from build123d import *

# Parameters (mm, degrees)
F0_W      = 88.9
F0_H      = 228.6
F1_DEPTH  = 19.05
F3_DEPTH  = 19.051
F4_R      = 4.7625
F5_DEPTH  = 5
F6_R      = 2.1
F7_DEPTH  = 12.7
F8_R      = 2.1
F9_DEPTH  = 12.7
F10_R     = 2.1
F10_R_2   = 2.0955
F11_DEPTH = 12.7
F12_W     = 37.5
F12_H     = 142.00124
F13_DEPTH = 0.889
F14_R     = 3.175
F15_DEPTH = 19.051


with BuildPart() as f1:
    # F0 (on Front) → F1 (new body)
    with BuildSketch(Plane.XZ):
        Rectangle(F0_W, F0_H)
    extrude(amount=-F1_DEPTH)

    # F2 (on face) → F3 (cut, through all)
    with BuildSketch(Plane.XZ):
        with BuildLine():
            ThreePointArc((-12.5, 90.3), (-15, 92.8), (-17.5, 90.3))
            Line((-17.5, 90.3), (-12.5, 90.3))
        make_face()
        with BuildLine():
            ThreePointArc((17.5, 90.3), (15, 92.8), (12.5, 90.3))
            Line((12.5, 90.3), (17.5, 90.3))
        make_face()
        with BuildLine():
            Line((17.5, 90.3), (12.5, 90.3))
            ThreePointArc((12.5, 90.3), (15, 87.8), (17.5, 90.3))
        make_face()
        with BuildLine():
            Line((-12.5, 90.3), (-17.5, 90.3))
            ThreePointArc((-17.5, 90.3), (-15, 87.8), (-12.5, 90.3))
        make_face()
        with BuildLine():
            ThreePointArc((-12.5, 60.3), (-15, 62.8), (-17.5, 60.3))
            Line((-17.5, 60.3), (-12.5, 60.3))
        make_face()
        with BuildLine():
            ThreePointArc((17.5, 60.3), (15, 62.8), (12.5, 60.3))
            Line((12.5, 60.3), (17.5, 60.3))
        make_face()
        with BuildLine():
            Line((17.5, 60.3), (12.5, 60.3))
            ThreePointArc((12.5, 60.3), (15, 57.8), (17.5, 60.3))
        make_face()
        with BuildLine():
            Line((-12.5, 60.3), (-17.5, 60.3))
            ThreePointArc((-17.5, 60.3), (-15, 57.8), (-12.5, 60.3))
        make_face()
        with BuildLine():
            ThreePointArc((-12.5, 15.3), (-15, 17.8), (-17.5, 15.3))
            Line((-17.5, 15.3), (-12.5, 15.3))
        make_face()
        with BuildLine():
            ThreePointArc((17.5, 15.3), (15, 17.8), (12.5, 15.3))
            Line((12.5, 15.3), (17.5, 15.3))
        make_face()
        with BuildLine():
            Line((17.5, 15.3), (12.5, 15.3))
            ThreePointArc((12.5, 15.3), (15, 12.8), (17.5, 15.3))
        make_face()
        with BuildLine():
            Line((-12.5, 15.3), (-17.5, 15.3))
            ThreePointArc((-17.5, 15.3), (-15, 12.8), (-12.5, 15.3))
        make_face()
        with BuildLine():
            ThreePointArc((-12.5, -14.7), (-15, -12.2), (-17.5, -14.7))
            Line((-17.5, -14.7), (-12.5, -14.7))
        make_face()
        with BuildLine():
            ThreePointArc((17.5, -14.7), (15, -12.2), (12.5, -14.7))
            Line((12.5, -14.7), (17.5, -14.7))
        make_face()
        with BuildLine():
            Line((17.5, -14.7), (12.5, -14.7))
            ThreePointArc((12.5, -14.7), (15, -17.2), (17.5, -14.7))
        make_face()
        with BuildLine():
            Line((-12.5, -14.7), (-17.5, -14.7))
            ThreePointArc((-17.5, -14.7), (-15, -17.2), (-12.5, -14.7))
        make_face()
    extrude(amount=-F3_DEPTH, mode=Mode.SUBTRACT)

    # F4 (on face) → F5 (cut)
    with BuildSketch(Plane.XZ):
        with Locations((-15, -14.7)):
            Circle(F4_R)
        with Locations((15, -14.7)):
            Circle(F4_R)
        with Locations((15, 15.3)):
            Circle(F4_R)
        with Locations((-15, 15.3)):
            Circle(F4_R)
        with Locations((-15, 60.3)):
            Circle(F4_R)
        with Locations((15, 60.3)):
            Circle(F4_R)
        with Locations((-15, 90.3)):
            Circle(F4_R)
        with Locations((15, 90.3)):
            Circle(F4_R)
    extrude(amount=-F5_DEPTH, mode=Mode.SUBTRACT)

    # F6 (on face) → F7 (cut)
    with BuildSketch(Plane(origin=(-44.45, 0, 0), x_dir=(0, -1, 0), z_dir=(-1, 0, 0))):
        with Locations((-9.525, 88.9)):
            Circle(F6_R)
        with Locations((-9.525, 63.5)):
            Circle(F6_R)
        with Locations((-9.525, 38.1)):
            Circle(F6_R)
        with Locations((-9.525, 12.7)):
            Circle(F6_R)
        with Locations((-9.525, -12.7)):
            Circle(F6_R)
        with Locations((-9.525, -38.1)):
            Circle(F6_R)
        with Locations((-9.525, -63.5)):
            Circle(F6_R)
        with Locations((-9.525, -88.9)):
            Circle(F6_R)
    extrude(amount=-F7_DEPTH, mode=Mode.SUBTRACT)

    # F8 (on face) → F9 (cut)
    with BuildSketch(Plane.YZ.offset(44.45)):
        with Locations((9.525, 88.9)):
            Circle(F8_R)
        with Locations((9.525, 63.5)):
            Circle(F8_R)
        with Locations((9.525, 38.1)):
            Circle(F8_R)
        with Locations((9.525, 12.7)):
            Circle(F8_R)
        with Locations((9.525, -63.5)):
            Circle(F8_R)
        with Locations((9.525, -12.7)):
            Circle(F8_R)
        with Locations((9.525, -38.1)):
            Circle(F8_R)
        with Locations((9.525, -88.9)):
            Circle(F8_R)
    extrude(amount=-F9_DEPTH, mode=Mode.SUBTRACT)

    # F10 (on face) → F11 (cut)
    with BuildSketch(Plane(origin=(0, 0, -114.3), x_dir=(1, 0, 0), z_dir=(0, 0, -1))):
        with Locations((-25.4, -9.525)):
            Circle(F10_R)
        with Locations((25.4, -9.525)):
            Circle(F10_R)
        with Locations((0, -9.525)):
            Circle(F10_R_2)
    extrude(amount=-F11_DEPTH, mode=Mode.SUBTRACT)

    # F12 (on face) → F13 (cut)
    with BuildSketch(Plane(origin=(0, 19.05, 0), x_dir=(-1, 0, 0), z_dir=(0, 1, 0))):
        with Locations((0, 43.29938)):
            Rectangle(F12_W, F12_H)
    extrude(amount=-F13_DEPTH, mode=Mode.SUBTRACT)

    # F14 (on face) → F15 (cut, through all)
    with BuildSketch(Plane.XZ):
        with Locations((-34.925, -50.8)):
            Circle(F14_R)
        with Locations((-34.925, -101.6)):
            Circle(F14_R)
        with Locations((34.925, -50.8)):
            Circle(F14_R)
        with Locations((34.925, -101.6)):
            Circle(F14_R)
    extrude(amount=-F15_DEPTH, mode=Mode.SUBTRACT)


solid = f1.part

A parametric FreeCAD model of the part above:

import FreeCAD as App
import Part
import Sketcher

V = App.Vector
Q = App.Units.Quantity

doc = App.newDocument("Part")
params = doc.addObject("Spreadsheet::Sheet", "Params")
for row, (alias, value) in enumerate([
    ("sketch1_height", "9 in"),
    ("sketch1_width", "3.5 in"),
    ("pad1_length", "0.75 in"),
    ("sketch3_diameter", "0.375 in"),
    ("pocket2_length", "5 mm"),
    ("pocket3_length", "0.5 in"),
    ("pocket4_length", "0.5 in"),
    ("sketch6_diameter", "0.165 in"),
    ("pocket5_length", "0.5 in"),
    ("pocket6_length", "0.035 in"),
    ("sketch8_diameter", "0.25 in"),
], start=1):
    params.set(f"A{row}", alias)
    params.set(f"B{row}", "=" + value)
    params.setAlias(f"B{row}", alias)

body = doc.addObject("PartDesign::Body", "Body")

# Sketch on XZ plane
sketch1 = body.newObject("Sketcher::SketchObject", "Sketch")
sketch1.AttachmentSupport = (doc.getObject("XZ_Plane"), [""])
sketch1.MapMode = "FlatFace"
sketch1.addGeometry(Part.LineSegment(V(-44, 114, 0), V(-44, -114, 0)), False)
sketch1.addGeometry(Part.LineSegment(V(-44, -114, 0), V(44, -114, 0)), False)
sketch1.addGeometry(Part.LineSegment(V(44, -114, 0), V(44, 114, 0)), False)
sketch1.addGeometry(Part.LineSegment(V(44, 114, 0), V(-44, 114, 0)), False)
sketch1.addConstraint(Sketcher.Constraint("Coincident", 0, 2, 1, 1))
sketch1.addConstraint(Sketcher.Constraint("Coincident", 1, 2, 2, 1))
sketch1.addConstraint(Sketcher.Constraint("Coincident", 2, 2, 3, 1))
sketch1.addConstraint(Sketcher.Constraint("Coincident", 3, 2, 0, 1))
sketch1.addConstraint(Sketcher.Constraint("Vertical", 0))
sketch1.addConstraint(Sketcher.Constraint("Horizontal", 1))
sketch1.addConstraint(Sketcher.Constraint("Vertical", 2))
sketch1.addConstraint(Sketcher.Constraint("Horizontal", 3))
sketch1.addConstraint(Sketcher.Constraint("Symmetric", 0, 2, 2, 2, -1, 1))
sketch1.addConstraint(Sketcher.Constraint("DistanceY", 0, 2, 0, 1, Q("9 in")))
sketch1.addConstraint(Sketcher.Constraint("DistanceX", 1, 1, 1, 2, Q("3.5 in")))
sketch1.setExpression("Constraints[9]", "Params.sketch1_height")
sketch1.setExpression("Constraints[10]", "Params.sketch1_width")
pad1 = body.newObject("PartDesign::Pad", "Pad")
pad1.Profile = sketch1
pad1.setExpression("Length", "Params.pad1_length")
pad1.Reversed = True

# Sketch on XZ plane
sketch2 = body.newObject("Sketcher::SketchObject", "Sketch001")
sketch2.AttachmentSupport = (doc.getObject("XZ_Plane"), [""])
sketch2.MapMode = "FlatFace"
sketch2.addGeometry(Part.Circle(V(-15, 90.3, 0), V(0, 0, 1), 2.5), False)
sketch2.addGeometry(Part.Circle(V(15, 90.3, 0), V(0, 0, 1), 2.5), False)
sketch2.addGeometry(Part.Circle(V(-15, 60.3, 0), V(0, 0, 1), 2.5), False)
sketch2.addGeometry(Part.Circle(V(15, 60.3, 0), V(0, 0, 1), 2.5), False)
sketch2.addGeometry(Part.Circle(V(-15, 15.3, 0), V(0, 0, 1), 2.5), False)
sketch2.addGeometry(Part.Circle(V(15, 15.3, 0), V(0, 0, 1), 2.5), False)
sketch2.addGeometry(Part.Circle(V(-15, -14.7, 0), V(0, 0, 1), 2.5), False)
sketch2.addGeometry(Part.Circle(V(15, -14.7, 0), V(0, 0, 1), 2.5), False)
sketch2.addConstraint(Sketcher.Constraint("Equal", 0, 1))
sketch2.addConstraint(Sketcher.Constraint("Equal", 1, 2))
sketch2.addConstraint(Sketcher.Constraint("Equal", 2, 3))
sketch2.addConstraint(Sketcher.Constraint("Equal", 3, 4))
sketch2.addConstraint(Sketcher.Constraint("Equal", 4, 5))
sketch2.addConstraint(Sketcher.Constraint("Equal", 5, 6))
sketch2.addConstraint(Sketcher.Constraint("Equal", 6, 7))
sketch2.addConstraint(Sketcher.Constraint("Symmetric", 0, 3, 1, 3, -2))
sketch2.addConstraint(Sketcher.Constraint("Symmetric", 2, 3, 3, 3, -2))
sketch2.addConstraint(Sketcher.Constraint("Symmetric", 4, 3, 5, 3, -2))
sketch2.addConstraint(Sketcher.Constraint("Symmetric", 6, 3, 7, 3, -2))
sketch2.addConstraint(Sketcher.Constraint("Vertical", 0, 3, 2, 3))
sketch2.addConstraint(Sketcher.Constraint("Vertical", 2, 3, 4, 3))
sketch2.addConstraint(Sketcher.Constraint("Vertical", 4, 3, 6, 3))
sketch2.addConstraint(Sketcher.Constraint("Diameter", 0, 5.0))
sketch2.addConstraint(Sketcher.Constraint("DistanceX", 0, 3, -1, 1, 15.0))
sketch2.addConstraint(Sketcher.Constraint("DistanceY", -1, 1, 0, 3, 90.3))
sketch2.addConstraint(Sketcher.Constraint("DistanceY", -1, 1, 2, 3, 60.3))
sketch2.addConstraint(Sketcher.Constraint("DistanceY", -1, 1, 4, 3, 15.3))
sketch2.addConstraint(Sketcher.Constraint("DistanceY", 6, 3, -1, 1, 14.7))
pocket1 = body.newObject("PartDesign::Pocket", "Pocket")
pocket1.Profile = sketch2
pocket1.Type = "ThroughAll"

# Sketch on XZ plane
sketch3 = body.newObject("Sketcher::SketchObject", "Sketch002")
sketch3.AttachmentSupport = (doc.getObject("XZ_Plane"), [""])
sketch3.MapMode = "FlatFace"
sketch3.addGeometry(Part.Circle(V(-15, -14.7, 0), V(0, 0, 1), 4.8), False)
sketch3.addGeometry(Part.Circle(V(15, -14.7, 0), V(0, 0, 1), 4.8), False)
sketch3.addGeometry(Part.Circle(V(15, 15.3, 0), V(0, 0, 1), 4.8), False)
sketch3.addGeometry(Part.Circle(V(-15, 15.3, 0), V(0, 0, 1), 4.8), False)
sketch3.addGeometry(Part.Circle(V(-15, 60.3, 0), V(0, 0, 1), 4.8), False)
sketch3.addGeometry(Part.Circle(V(15, 60.3, 0), V(0, 0, 1), 4.8), False)
sketch3.addGeometry(Part.Circle(V(-15, 90.3, 0), V(0, 0, 1), 4.8), False)
sketch3.addGeometry(Part.Circle(V(15, 90.3, 0), V(0, 0, 1), 4.8), False)
sketch3.addConstraint(Sketcher.Constraint("Equal", 0, 1))
sketch3.addConstraint(Sketcher.Constraint("Equal", 1, 2))
sketch3.addConstraint(Sketcher.Constraint("Equal", 2, 3))
sketch3.addConstraint(Sketcher.Constraint("Equal", 3, 4))
sketch3.addConstraint(Sketcher.Constraint("Equal", 4, 5))
sketch3.addConstraint(Sketcher.Constraint("Equal", 5, 6))
sketch3.addConstraint(Sketcher.Constraint("Equal", 6, 7))
sketch3.addConstraint(Sketcher.Constraint("Symmetric", 0, 3, 1, 3, -2))
sketch3.addConstraint(Sketcher.Constraint("Symmetric", 2, 3, 3, 3, -2))
sketch3.addConstraint(Sketcher.Constraint("Symmetric", 4, 3, 5, 3, -2))
sketch3.addConstraint(Sketcher.Constraint("Symmetric", 6, 3, 7, 3, -2))
sketch3.addConstraint(Sketcher.Constraint("Vertical", 1, 3, 2, 3))
sketch3.addConstraint(Sketcher.Constraint("Vertical", 3, 3, 4, 3))
sketch3.addConstraint(Sketcher.Constraint("Vertical", 4, 3, 6, 3))
sketch3.addConstraint(Sketcher.Constraint("Diameter", 0, Q("0.375 in")))
sketch3.addConstraint(Sketcher.Constraint("DistanceX", 0, 3, -1, 1, 15.0))
sketch3.addConstraint(Sketcher.Constraint("DistanceY", 0, 3, -1, 1, 14.7))
sketch3.addConstraint(Sketcher.Constraint("DistanceY", -1, 1, 2, 3, 15.3))
sketch3.addConstraint(Sketcher.Constraint("DistanceY", -1, 1, 4, 3, 60.3))
sketch3.addConstraint(Sketcher.Constraint("DistanceY", -1, 1, 6, 3, 90.3))
sketch3.setExpression("Constraints[14]", "Params.sketch3_diameter")
pocket2 = body.newObject("PartDesign::Pocket", "Pocket001")
pocket2.Profile = sketch3
pocket2.setExpression("Length", "Params.pocket2_length")

# Sketch on YZ plane
sketch4 = body.newObject("Sketcher::SketchObject", "Sketch003")
sketch4.AttachmentSupport = (doc.getObject("YZ_Plane"), [""])
sketch4.MapMode = "FlatFace"
sketch4.AttachmentOffset = App.Placement(V(0, 0, -1.75 * 25.4), App.Rotation())
sketch4.addGeometry(Part.Circle(V(9.5, 88.9, 0), V(0, 0, 1), 2.1), False)
sketch4.addGeometry(Part.Circle(V(9.5, 63.5, 0), V(0, 0, 1), 2.1), False)
sketch4.addGeometry(Part.Circle(V(9.5, 38.1, 0), V(0, 0, 1), 2.1), False)
sketch4.addGeometry(Part.Circle(V(9.5, 12.7, 0), V(0, 0, 1), 2.1), False)
sketch4.addGeometry(Part.Circle(V(9.5, -12.7, 0), V(0, 0, 1), 2.1), False)
sketch4.addGeometry(Part.Circle(V(9.5, -38.1, 0), V(0, 0, 1), 2.1), False)
sketch4.addGeometry(Part.Circle(V(9.5, -63.5, 0), V(0, 0, 1), 2.1), False)
sketch4.addGeometry(Part.Circle(V(9.5, -88.9, 0), V(0, 0, 1), 2.1), False)
sketch4.addConstraint(Sketcher.Constraint("Equal", 0, 1))
sketch4.addConstraint(Sketcher.Constraint("Equal", 1, 2))
sketch4.addConstraint(Sketcher.Constraint("Equal", 2, 3))
sketch4.addConstraint(Sketcher.Constraint("Equal", 3, 4))
sketch4.addConstraint(Sketcher.Constraint("Equal", 4, 5))
sketch4.addConstraint(Sketcher.Constraint("Equal", 5, 6))
sketch4.addConstraint(Sketcher.Constraint("Equal", 6, 7))
sketch4.addConstraint(Sketcher.Constraint("Symmetric", 3, 3, 4, 3, -1))
sketch4.addConstraint(Sketcher.Constraint("Symmetric", 2, 3, 5, 3, -1))
sketch4.addConstraint(Sketcher.Constraint("Symmetric", 1, 3, 6, 3, -1))
sketch4.addConstraint(Sketcher.Constraint("Symmetric", 0, 3, 7, 3, -1))
sketch4.addConstraint(Sketcher.Constraint("Vertical", 0, 3, 1, 3))
sketch4.addConstraint(Sketcher.Constraint("Vertical", 1, 3, 2, 3))
sketch4.addConstraint(Sketcher.Constraint("Vertical", 2, 3, 3, 3))
sketch4.addConstraint(Sketcher.Constraint("DistanceY", 1, 3, 0, 3, Q("1 in")))
sketch4.addConstraint(Sketcher.Constraint("DistanceY", 2, 3, 1, 3, Q("1 in")))
sketch4.addConstraint(Sketcher.Constraint("DistanceY", 3, 3, 2, 3, Q("1 in")))
sketch4.addConstraint(Sketcher.Constraint("DistanceY", 4, 3, 3, 3, Q("1 in")))
sketch4.addConstraint(Sketcher.Constraint("Diameter", 0, 4.2))
sketch4.addConstraint(Sketcher.Constraint("DistanceX", -1, 1, 0, 3, Q("0.375 in")))
pocket3 = body.newObject("PartDesign::Pocket", "Pocket002")
pocket3.Profile = sketch4
pocket3.setExpression("Length", "Params.pocket3_length")
pocket3.Reversed = True

# Sketch on YZ plane
sketch5 = body.newObject("Sketcher::SketchObject", "Sketch004")
sketch5.AttachmentSupport = (doc.getObject("YZ_Plane"), [""])
sketch5.MapMode = "FlatFace"
sketch5.AttachmentOffset = App.Placement(V(0, 0, 1.75 * 25.4), App.Rotation())
sketch5.addGeometry(Part.Circle(V(9.5, 88.9, 0), V(0, 0, 1), 2.1), False)
sketch5.addGeometry(Part.Circle(V(9.5, 63.5, 0), V(0, 0, 1), 2.1), False)
sketch5.addGeometry(Part.Circle(V(9.5, 38.1, 0), V(0, 0, 1), 2.1), False)
sketch5.addGeometry(Part.Circle(V(9.5, 12.7, 0), V(0, 0, 1), 2.1), False)
sketch5.addGeometry(Part.Circle(V(9.5, -63.5, 0), V(0, 0, 1), 2.1), False)
sketch5.addGeometry(Part.Circle(V(9.5, -12.7, 0), V(0, 0, 1), 2.1), False)
sketch5.addGeometry(Part.Circle(V(9.5, -38.1, 0), V(0, 0, 1), 2.1), False)
sketch5.addGeometry(Part.Circle(V(9.5, -88.9, 0), V(0, 0, 1), 2.1), False)
sketch5.addConstraint(Sketcher.Constraint("Equal", 0, 1))
sketch5.addConstraint(Sketcher.Constraint("Equal", 1, 2))
sketch5.addConstraint(Sketcher.Constraint("Equal", 2, 3))
sketch5.addConstraint(Sketcher.Constraint("Equal", 3, 4))
sketch5.addConstraint(Sketcher.Constraint("Equal", 4, 5))
sketch5.addConstraint(Sketcher.Constraint("Equal", 5, 6))
sketch5.addConstraint(Sketcher.Constraint("Equal", 6, 7))
sketch5.addConstraint(Sketcher.Constraint("Symmetric", 1, 3, 4, 3, -1))
sketch5.addConstraint(Sketcher.Constraint("Symmetric", 3, 3, 5, 3, -1))
sketch5.addConstraint(Sketcher.Constraint("Symmetric", 2, 3, 6, 3, -1))
sketch5.addConstraint(Sketcher.Constraint("Symmetric", 0, 3, 7, 3, -1))
sketch5.addConstraint(Sketcher.Constraint("Vertical", 0, 3, 1, 3))
sketch5.addConstraint(Sketcher.Constraint("Vertical", 1, 3, 2, 3))
sketch5.addConstraint(Sketcher.Constraint("Vertical", 2, 3, 3, 3))
sketch5.addConstraint(Sketcher.Constraint("DistanceY", 1, 3, 0, 3, Q("1 in")))
sketch5.addConstraint(Sketcher.Constraint("DistanceY", 2, 3, 1, 3, Q("1 in")))
sketch5.addConstraint(Sketcher.Constraint("DistanceY", 3, 3, 2, 3, Q("1 in")))
sketch5.addConstraint(Sketcher.Constraint("DistanceY", 4, 3, 3, 3, Q("3 in")))
sketch5.addConstraint(Sketcher.Constraint("Diameter", 0, 4.2))
sketch5.addConstraint(Sketcher.Constraint("DistanceX", -1, 1, 0, 3, Q("0.375 in")))
pocket4 = body.newObject("PartDesign::Pocket", "Pocket003")
pocket4.Profile = sketch5
pocket4.setExpression("Length", "Params.pocket4_length")

# Sketch on XY plane
sketch6 = body.newObject("Sketcher::SketchObject", "Sketch005")
sketch6.AttachmentSupport = (doc.getObject("XY_Plane"), [""])
sketch6.MapMode = "FlatFace"
sketch6.AttachmentOffset = App.Placement(V(0, 0, -4.5 * 25.4), App.Rotation())
sketch6.addGeometry(Part.Circle(V(-25.4, 9.5, 0), V(0, 0, 1), 2.1), False)
sketch6.addGeometry(Part.Circle(V(25.4, 9.5, 0), V(0, 0, 1), 2.1), False)
sketch6.addGeometry(Part.Circle(V(0, 9.5, 0), V(0, 0, 1), 2.1), False)
sketch6.addConstraint(Sketcher.Constraint("Equal", 0, 1))
sketch6.addConstraint(Sketcher.Constraint("Symmetric", 0, 3, 1, 3, -2))
sketch6.addConstraint(Sketcher.Constraint("PointOnObject", 2, 3, -2))
sketch6.addConstraint(Sketcher.Constraint("Horizontal", 1, 3, 2, 3))
sketch6.addConstraint(Sketcher.Constraint("Diameter", 2, Q("0.165 in")))
sketch6.addConstraint(Sketcher.Constraint("DistanceX", 0, 3, -1, 1, Q("1 in")))
sketch6.addConstraint(Sketcher.Constraint("Diameter", 0, 4.2))
sketch6.addConstraint(Sketcher.Constraint("DistanceY", -1, 1, 0, 3, Q("0.375 in")))
sketch6.setExpression("Constraints[4]", "Params.sketch6_diameter")
pocket5 = body.newObject("PartDesign::Pocket", "Pocket004")
pocket5.Profile = sketch6
pocket5.setExpression("Length", "Params.pocket5_length")
pocket5.Reversed = True

# Sketch on XZ plane
sketch7 = body.newObject("Sketcher::SketchObject", "Sketch006")
sketch7.AttachmentSupport = (doc.getObject("XZ_Plane"), [""])
sketch7.MapMode = "FlatFace"
sketch7.AttachmentOffset = App.Placement(V(0, 0, -0.75 * 25.4), App.Rotation())
sketch7.addGeometry(Part.LineSegment(V(19, 114, 0), V(19, -28, 0)), False)
sketch7.addGeometry(Part.LineSegment(V(19, -28, 0), V(-19, -28, 0)), False)
sketch7.addGeometry(Part.LineSegment(V(-19, -28, 0), V(-19, 114, 0)), False)
sketch7.addGeometry(Part.LineSegment(V(-19, 114, 0), V(19, 114, 0)), False)
sketch7.addConstraint(Sketcher.Constraint("Coincident", 0, 2, 1, 1))
sketch7.addConstraint(Sketcher.Constraint("Coincident", 1, 2, 2, 1))
sketch7.addConstraint(Sketcher.Constraint("Coincident", 2, 2, 3, 1))
sketch7.addConstraint(Sketcher.Constraint("Coincident", 3, 2, 0, 1))
sketch7.addConstraint(Sketcher.Constraint("Vertical", 0))
sketch7.addConstraint(Sketcher.Constraint("Horizontal", 1))
sketch7.addConstraint(Sketcher.Constraint("Vertical", 2))
sketch7.addConstraint(Sketcher.Constraint("Horizontal", 3))
sketch7.addConstraint(Sketcher.Constraint("DistanceY", -1, 1, 2, 2, Q("4.5 in")))
sketch7.addConstraint(Sketcher.Constraint("DistanceY", 0, 2, 0, 1, Q("5.5906 in")))
sketch7.addConstraint(Sketcher.Constraint("DistanceX", 1, 2, 1, 1, 37.5))
sketch7.addConstraint(Sketcher.Constraint("DistanceX", -1, 1, 0, 2, 18.75))
pocket6 = body.newObject("PartDesign::Pocket", "Pocket005")
pocket6.Profile = sketch7
pocket6.setExpression("Length", "Params.pocket6_length")
pocket6.Reversed = True

# Sketch on XZ plane
sketch8 = body.newObject("Sketcher::SketchObject", "Sketch007")
sketch8.AttachmentSupport = (doc.getObject("XZ_Plane"), [""])
sketch8.MapMode = "FlatFace"
sketch8.addGeometry(Part.Circle(V(-34.9, -50.8, 0), V(0, 0, 1), 3.2), False)
sketch8.addGeometry(Part.Circle(V(-34.9, -101.6, 0), V(0, 0, 1), 3.2), False)
sketch8.addGeometry(Part.Circle(V(34.9, -50.8, 0), V(0, 0, 1), 3.2), False)
sketch8.addGeometry(Part.Circle(V(34.9, -101.6, 0), V(0, 0, 1), 3.2), False)
sketch8.addConstraint(Sketcher.Constraint("Equal", 0, 1))
sketch8.addConstraint(Sketcher.Constraint("Equal", 1, 2))
sketch8.addConstraint(Sketcher.Constraint("Equal", 2, 3))
sketch8.addConstraint(Sketcher.Constraint("Symmetric", 0, 3, 2, 3, -2))
sketch8.addConstraint(Sketcher.Constraint("Symmetric", 1, 3, 3, 3, -2))
sketch8.addConstraint(Sketcher.Constraint("Vertical", 0, 3, 1, 3))
sketch8.addConstraint(Sketcher.Constraint("Diameter", 0, Q("0.25 in")))
sketch8.addConstraint(Sketcher.Constraint("DistanceY", 0, 3, -1, 1, Q("2 in")))
sketch8.addConstraint(Sketcher.Constraint("DistanceY", 1, 3, -1, 1, Q("4 in")))
sketch8.addConstraint(Sketcher.Constraint("DistanceX", 0, 3, 2, 3, Q("2.75 in")))
sketch8.setExpression("Constraints[6]", "Params.sketch8_diameter")
pocket7 = body.newObject("PartDesign::Pocket", "Pocket006")
pocket7.Profile = sketch8
pocket7.Type = "ThroughAll"

doc.recompute()
